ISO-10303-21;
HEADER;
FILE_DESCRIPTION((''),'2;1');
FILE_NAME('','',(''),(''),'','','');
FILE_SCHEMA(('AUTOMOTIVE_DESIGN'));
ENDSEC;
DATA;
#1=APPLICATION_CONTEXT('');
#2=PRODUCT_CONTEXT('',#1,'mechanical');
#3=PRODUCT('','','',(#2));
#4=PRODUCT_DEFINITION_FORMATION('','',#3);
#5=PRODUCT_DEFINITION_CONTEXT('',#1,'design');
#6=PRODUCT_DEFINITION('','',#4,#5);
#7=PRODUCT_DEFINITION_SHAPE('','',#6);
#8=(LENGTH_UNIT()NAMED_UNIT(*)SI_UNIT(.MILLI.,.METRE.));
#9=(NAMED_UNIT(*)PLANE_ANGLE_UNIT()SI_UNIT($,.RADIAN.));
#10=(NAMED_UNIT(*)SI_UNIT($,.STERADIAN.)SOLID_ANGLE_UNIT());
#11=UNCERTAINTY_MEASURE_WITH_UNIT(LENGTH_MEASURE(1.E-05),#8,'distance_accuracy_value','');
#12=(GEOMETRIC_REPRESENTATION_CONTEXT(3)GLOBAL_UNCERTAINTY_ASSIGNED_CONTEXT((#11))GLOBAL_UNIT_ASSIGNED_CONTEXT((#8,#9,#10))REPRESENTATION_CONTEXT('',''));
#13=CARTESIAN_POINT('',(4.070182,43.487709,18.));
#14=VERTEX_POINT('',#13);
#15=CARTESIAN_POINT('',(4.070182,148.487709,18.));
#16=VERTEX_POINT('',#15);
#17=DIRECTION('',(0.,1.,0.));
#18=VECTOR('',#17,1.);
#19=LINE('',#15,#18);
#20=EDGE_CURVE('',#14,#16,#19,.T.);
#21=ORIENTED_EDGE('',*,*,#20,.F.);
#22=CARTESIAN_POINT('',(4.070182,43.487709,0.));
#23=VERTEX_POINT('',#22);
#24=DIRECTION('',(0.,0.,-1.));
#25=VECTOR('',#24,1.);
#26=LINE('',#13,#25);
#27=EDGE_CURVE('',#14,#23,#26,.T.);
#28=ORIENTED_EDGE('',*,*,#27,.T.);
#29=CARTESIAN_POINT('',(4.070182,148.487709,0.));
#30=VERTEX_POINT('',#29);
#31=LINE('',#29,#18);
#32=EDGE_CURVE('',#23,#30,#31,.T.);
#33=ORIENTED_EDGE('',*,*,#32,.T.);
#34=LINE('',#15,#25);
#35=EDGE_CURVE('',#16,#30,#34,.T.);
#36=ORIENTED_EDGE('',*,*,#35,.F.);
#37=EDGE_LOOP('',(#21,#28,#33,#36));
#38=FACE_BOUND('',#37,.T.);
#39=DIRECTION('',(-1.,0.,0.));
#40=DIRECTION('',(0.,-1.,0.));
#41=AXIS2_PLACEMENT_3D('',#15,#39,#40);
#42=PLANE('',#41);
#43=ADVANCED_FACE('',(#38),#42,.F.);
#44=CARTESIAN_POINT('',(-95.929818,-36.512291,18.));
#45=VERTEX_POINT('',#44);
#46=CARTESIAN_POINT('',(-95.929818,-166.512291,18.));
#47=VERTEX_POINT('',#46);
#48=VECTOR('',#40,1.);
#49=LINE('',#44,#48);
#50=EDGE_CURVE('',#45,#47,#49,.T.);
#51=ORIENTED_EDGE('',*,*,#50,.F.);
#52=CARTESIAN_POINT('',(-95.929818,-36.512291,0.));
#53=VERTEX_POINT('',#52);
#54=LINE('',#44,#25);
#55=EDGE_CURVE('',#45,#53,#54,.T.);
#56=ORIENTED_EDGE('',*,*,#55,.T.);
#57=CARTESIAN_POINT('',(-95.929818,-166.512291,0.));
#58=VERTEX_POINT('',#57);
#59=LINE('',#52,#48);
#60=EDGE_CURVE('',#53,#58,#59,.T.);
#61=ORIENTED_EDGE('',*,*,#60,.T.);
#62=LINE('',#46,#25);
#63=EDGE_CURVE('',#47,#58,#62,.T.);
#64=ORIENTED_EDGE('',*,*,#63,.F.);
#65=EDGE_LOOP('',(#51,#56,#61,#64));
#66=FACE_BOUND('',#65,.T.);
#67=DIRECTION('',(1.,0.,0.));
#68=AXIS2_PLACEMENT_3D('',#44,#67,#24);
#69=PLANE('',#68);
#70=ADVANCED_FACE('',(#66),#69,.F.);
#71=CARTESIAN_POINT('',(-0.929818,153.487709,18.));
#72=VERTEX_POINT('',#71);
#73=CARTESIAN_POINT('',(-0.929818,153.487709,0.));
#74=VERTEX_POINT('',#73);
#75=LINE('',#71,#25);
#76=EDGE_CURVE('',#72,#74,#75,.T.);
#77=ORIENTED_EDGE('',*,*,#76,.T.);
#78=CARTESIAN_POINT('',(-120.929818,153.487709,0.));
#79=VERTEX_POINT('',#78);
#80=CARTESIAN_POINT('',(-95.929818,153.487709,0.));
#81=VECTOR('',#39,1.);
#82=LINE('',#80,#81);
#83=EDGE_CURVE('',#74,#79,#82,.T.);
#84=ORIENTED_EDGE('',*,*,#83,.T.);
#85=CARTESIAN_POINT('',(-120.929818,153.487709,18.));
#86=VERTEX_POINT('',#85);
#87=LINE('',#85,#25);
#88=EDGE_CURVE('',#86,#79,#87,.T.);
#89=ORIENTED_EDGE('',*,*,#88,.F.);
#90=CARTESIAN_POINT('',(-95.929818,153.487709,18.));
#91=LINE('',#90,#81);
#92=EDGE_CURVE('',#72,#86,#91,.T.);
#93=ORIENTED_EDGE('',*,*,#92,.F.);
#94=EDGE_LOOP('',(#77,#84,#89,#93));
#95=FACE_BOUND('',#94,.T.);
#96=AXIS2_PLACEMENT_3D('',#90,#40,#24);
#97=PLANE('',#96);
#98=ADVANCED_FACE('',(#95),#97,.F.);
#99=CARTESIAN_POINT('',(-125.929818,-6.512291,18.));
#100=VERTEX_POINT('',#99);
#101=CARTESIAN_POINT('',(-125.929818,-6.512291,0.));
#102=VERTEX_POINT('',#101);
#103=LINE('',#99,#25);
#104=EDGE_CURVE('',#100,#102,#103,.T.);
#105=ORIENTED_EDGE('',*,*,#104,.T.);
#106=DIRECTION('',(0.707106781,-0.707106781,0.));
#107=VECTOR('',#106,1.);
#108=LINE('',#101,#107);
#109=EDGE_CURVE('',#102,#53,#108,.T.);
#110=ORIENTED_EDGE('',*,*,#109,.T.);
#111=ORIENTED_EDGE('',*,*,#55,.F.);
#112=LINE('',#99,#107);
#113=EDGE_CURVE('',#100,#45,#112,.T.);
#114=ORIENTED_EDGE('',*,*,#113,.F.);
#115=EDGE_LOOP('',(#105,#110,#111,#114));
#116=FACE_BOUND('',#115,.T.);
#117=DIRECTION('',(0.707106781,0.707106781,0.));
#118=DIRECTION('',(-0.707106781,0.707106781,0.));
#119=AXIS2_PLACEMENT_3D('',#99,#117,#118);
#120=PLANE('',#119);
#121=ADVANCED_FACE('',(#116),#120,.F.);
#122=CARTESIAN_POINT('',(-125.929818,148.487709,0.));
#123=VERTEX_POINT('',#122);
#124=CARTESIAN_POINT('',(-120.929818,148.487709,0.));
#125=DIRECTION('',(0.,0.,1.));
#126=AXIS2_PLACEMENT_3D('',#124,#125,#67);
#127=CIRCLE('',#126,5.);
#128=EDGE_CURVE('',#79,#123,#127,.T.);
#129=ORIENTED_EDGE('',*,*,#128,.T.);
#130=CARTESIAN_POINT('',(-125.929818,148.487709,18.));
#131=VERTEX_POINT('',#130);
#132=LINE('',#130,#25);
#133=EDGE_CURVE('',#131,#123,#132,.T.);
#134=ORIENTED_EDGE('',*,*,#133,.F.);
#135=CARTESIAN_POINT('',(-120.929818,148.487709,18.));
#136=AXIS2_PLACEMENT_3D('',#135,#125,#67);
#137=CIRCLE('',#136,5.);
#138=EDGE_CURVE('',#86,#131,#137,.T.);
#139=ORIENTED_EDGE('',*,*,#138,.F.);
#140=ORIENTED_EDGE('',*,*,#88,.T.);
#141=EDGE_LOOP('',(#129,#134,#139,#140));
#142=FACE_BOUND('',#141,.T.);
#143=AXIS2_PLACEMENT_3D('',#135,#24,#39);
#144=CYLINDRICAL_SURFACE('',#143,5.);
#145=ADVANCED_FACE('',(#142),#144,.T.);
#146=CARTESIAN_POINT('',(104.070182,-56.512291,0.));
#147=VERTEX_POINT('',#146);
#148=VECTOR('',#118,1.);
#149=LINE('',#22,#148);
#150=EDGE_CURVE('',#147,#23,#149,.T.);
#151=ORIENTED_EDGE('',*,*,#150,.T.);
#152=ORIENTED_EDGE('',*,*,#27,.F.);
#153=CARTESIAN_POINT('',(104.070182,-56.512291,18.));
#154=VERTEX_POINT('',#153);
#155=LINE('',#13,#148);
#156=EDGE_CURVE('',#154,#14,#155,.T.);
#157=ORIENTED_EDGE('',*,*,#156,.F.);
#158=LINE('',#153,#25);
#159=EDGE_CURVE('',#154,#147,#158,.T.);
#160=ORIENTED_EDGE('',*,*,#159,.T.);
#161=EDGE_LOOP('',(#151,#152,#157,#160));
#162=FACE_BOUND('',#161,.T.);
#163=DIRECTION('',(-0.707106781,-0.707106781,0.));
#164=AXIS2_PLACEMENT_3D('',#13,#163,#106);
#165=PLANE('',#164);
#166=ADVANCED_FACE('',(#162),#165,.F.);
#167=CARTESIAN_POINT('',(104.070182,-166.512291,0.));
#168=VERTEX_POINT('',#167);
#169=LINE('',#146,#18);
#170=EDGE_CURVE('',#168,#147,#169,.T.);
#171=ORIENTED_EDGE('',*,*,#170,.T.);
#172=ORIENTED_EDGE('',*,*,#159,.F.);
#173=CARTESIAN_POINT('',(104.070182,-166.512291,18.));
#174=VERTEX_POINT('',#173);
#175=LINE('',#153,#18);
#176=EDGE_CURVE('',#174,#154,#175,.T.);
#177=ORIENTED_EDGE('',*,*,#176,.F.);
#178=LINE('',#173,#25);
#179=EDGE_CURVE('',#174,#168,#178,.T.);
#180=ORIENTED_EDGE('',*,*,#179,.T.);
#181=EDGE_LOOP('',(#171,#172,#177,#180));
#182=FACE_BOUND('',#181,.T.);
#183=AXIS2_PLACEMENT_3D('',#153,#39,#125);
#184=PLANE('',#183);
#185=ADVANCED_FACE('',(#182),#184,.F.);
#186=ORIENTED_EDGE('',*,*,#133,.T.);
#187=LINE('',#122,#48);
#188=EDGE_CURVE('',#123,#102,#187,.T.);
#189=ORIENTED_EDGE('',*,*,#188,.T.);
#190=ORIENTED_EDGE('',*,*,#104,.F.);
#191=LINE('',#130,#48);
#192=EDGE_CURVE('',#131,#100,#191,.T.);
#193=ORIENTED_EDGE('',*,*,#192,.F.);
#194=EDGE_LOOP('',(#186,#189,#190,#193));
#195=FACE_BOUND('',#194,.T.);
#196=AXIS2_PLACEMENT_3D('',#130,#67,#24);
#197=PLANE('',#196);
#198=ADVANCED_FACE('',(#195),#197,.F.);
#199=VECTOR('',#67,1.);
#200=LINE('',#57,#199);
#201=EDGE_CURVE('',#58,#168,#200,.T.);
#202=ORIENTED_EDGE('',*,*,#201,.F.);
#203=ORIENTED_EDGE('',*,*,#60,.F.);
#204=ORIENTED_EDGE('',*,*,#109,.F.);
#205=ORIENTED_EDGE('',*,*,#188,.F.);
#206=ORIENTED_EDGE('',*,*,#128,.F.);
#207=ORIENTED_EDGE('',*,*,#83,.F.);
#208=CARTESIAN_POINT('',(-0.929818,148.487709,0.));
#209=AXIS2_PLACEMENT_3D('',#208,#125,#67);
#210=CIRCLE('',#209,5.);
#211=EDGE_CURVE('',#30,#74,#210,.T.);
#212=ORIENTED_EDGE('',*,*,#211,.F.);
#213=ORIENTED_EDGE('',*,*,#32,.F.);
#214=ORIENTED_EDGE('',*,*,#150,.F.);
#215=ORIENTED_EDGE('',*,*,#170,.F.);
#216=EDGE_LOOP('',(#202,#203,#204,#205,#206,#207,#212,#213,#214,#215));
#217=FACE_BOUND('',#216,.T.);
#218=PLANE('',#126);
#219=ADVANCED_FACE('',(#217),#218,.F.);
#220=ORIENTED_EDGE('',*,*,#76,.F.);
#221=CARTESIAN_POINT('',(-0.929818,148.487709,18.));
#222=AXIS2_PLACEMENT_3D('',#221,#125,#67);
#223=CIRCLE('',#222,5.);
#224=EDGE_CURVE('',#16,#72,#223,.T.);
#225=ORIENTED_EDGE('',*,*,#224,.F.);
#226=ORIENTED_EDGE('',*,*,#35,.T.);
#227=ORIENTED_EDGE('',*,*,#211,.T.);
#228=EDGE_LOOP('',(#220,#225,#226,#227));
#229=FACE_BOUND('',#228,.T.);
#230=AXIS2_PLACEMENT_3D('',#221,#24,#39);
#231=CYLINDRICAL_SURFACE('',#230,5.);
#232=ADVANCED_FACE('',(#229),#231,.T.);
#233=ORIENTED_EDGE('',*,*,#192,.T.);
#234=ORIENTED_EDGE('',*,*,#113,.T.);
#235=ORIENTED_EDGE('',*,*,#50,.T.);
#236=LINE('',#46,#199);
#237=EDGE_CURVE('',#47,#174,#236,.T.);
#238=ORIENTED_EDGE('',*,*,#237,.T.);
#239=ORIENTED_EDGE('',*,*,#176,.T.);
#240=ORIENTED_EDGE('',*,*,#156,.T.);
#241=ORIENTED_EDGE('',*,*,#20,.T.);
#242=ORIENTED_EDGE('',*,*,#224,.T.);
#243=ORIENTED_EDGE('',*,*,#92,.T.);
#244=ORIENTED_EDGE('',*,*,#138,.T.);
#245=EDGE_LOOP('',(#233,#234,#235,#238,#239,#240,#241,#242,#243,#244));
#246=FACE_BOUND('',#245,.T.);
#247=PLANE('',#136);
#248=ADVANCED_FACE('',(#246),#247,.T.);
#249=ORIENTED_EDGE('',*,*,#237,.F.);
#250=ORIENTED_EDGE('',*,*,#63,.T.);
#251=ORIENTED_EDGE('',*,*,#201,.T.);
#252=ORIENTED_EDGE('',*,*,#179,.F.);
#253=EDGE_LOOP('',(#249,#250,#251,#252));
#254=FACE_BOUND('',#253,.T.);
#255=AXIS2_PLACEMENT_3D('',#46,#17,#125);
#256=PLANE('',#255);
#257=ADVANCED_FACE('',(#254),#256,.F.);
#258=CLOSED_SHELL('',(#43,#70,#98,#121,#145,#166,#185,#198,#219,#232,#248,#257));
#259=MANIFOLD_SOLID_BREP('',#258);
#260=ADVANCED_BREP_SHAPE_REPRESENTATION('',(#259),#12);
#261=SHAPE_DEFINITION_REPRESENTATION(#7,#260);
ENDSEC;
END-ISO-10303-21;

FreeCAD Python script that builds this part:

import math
import FreeCAD as App
import Part
import Sketcher

V = App.Vector
Q = App.Units.Quantity

doc = App.newDocument("Part")
body = doc.addObject("PartDesign::Body", "Body")

# Sketch on XY plane
sketch1 = doc.addObject("Sketcher::SketchObject", "Sketch")
body.addObject(sketch1)
sketch1.AttachmentSupport = (doc.XY_Plane, [""])
sketch1.MapMode = "FlatFace"
sketch1.addGeometry(Part.LineSegment(V(4, 43, 0), V(4, 148, 0)), False)
sketch1.addGeometry(Part.ArcOfCircle(Part.Circle(V(-1, 148, 0), V(0, 0, 1), 5), math.radians(0), math.radians(90)), False)
sketch1.addGeometry(Part.LineSegment(V(-1, 153, 0), V(-121, 153, 0)), False)
sketch1.addGeometry(Part.ArcOfCircle(Part.Circle(V(-121, 148, 0), V(0, 0, 1), 5), math.radians(90), math.radians(180)), False)
sketch1.addGeometry(Part.LineSegment(V(-126, 148, 0), V(-126, -7, 0)), False)
sketch1.addGeometry(Part.LineSegment(V(-126, -7, 0), V(-96, -37, 0)), False)
sketch1.addGeometry(Part.LineSegment(V(-96, -37, 0), V(-96, -167, 0)), False)
sketch1.addGeometry(Part.LineSegment(V(-96, -167, 0), V(104, -167, 0)), False)
sketch1.addGeometry(Part.LineSegment(V(104, -167, 0), V(104, -57, 0)), False)
sketch1.addGeometry(Part.LineSegment(V(104, -57, 0), V(4, 43, 0)), False)
sketch1.addConstraint(Sketcher.Constraint("Tangent", 0, 2, 1, 1))
sketch1.addConstraint(Sketcher.Constraint("Tangent", 1, 2, 2, 1))
sketch1.addConstraint(Sketcher.Constraint("Tangent", 2, 2, 3, 1))
sketch1.addConstraint(Sketcher.Constraint("Tangent", 3, 2, 4, 1))
sketch1.addConstraint(Sketcher.Constraint("Coincident", 4, 2, 5, 1))
sketch1.addConstraint(Sketcher.Constraint("Coincident", 5, 2, 6, 1))
sketch1.addConstraint(Sketcher.Constraint("Coincident", 6, 2, 7, 1))
sketch1.addConstraint(Sketcher.Constraint("Coincident", 7, 2, 8, 1))
sketch1.addConstraint(Sketcher.Constraint("Coincident", 8, 2, 9, 1))
sketch1.addConstraint(Sketcher.Constraint("Coincident", 9, 2, 0, 1))
sketch1.addConstraint(Sketcher.Constraint("Vertical", 0))
sketch1.addConstraint(Sketcher.Constraint("Horizontal", 2))
sketch1.addConstraint(Sketcher.Constraint("Vertical", 4))
sketch1.addConstraint(Sketcher.Constraint("Vertical", 6))
sketch1.addConstraint(Sketcher.Constraint("Horizontal", 7))
sketch1.addConstraint(Sketcher.Constraint("Vertical", 8))
sketch1.addConstraint(Sketcher.Constraint("Equal", 1, 3))
sketch1.addConstraint(Sketcher.Constraint("Parallel", 5, 9))
sketch1.addConstraint(Sketcher.Constraint("Radius", 1, Q("5 mm")))
sketch1.addConstraint(Sketcher.Constraint("DistanceX", 2, 2, 2, 1, Q("120 mm")))
sketch1.addConstraint(Sketcher.Constraint("DistanceX", 7, 1, 7, 2, Q("200 mm")))
sketch1.addConstraint(Sketcher.Constraint("DistanceY", 0, 1, 0, 2, Q("105 mm")))
sketch1.addConstraint(Sketcher.Constraint("DistanceY", 4, 2, 4, 1, Q("155 mm")))
sketch1.addConstraint(Sketcher.Constraint("DistanceY", 6, 2, 6, 1, Q("130 mm")))
sketch1.addConstraint(Sketcher.Constraint("DistanceY", 8, 1, 8, 2, Q("110 mm")))
sketch1.addConstraint(Sketcher.Constraint("DistanceX", 4, 2, 5, 2, Q("30 mm")))
sketch1.addConstraint(Sketcher.Constraint("DistanceX", 1, 3, -1, 1, Q("0.929818 mm")))
sketch1.addConstraint(Sketcher.Constraint("DistanceY", -1, 1, 1, 3, Q("148.487709 mm")))
pad1 = doc.addObject("PartDesign::Pad", "Pad")
body.addObject(pad1)
pad1.Profile = sketch1
pad1.Length = 18

doc.recompute()
